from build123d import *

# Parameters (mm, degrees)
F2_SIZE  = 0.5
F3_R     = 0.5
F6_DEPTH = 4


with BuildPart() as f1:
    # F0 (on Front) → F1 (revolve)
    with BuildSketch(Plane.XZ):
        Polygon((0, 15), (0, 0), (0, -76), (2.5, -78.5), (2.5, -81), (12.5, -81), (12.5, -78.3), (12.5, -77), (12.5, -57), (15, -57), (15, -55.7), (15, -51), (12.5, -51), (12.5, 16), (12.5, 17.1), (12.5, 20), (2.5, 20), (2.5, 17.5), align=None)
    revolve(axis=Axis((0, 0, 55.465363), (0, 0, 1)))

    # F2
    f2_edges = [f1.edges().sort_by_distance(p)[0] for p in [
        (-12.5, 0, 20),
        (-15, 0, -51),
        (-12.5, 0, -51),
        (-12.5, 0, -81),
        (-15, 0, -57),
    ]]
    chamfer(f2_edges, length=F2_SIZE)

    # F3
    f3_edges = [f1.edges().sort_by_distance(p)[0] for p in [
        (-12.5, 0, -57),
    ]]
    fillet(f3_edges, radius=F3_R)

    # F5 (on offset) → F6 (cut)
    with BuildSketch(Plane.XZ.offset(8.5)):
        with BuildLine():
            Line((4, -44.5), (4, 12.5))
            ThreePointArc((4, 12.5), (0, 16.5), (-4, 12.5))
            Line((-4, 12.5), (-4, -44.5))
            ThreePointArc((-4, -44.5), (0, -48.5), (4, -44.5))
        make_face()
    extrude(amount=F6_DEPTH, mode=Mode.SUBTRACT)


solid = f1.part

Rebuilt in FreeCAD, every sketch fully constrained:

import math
import FreeCAD as App
import Part
import Sketcher

V = App.Vector
Q = App.Units.Quantity


def edges_at(feature, points):
    """Names of the edges that pass closest to the given points."""
    edges = feature.Shape.Edges
    near = lambda p: min(range(len(edges)), key=lambda i: edges[i].distToShape(Part.Vertex(*p))[0])
    return sorted({f"Edge{near(p) + 1}" for p in points})

doc = App.newDocument("Part")
body = doc.addObject("PartDesign::Body", "Body")

# Sketch on XZ plane
sketch1 = body.newObject("Sketcher::SketchObject", "Sketch")
sketch1.AttachmentSupport = (doc.getObject("XZ_Plane"), [""])
sketch1.MapMode = "FlatFace"
sketch1.addGeometry([
    Part.LineSegment(V(0, 15, 0), V(0, -76, 0)),  # 0
    Part.LineSegment(V(0, -76, 0), V(2.5, -78.5, 0)),  # 1
    Part.LineSegment(V(2.5, -78.5, 0), V(2.5, -81, 0)),  # 2
    Part.LineSegment(V(2.5, -81, 0), V(12.5, -81, 0)),  # 3
    Part.LineSegment(V(12.5, -81, 0), V(12.5, -57, 0)),  # 4
    Part.LineSegment(V(12.5, -57, 0), V(15, -57, 0)),  # 5
    Part.LineSegment(V(15, -57, 0), V(15, -51, 0)),  # 6
    Part.LineSegment(V(15, -51, 0), V(12.5, -51, 0)),  # 7
    Part.LineSegment(V(12.5, -51, 0), V(12.5, 20, 0)),  # 8
    Part.LineSegment(V(12.5, 20, 0), V(2.5, 20, 0)),  # 9
    Part.LineSegment(V(2.5, 20, 0), V(2.5, 17.5, 0)),  # 10
    Part.LineSegment(V(2.5, 17.5, 0), V(0, 15, 0)),  # 11
], False)
sketch1.addConstraint([
    Sketcher.Constraint("Coincident", 0, 2, 1, 1),
    Sketcher.Constraint("Coincident", 1, 2, 2, 1),
    Sketcher.Constraint("Coincident", 2, 2, 3, 1),
    Sketcher.Constraint("Coincident", 3, 2, 4, 1),
    Sketcher.Constraint("Coincident", 4, 2, 5, 1),
    Sketcher.Constraint("Coincident", 5, 2, 6, 1),
    Sketcher.Constraint("Coincident", 6, 2, 7, 1),
    Sketcher.Constraint("Coincident", 7, 2, 8, 1),
    Sketcher.Constraint("Coincident", 8, 2, 9, 1),
    Sketcher.Constraint("Coincident", 9, 2, 10, 1),
    Sketcher.Constraint("Coincident", 10, 2, 11, 1),
    Sketcher.Constraint("Coincident", 11, 2, 0, 1),
    Sketcher.Constraint("Vertical", 0),
    Sketcher.Constraint("Vertical", 2),
    Sketcher.Constraint("Horizontal", 3),
    Sketcher.Constraint("Vertical", 4),
    Sketcher.Constraint("Horizontal", 5),
    Sketcher.Constraint("Vertical", 6),
    Sketcher.Constraint("Horizontal", 7),
    Sketcher.Constraint("Vertical", 8),
    Sketcher.Constraint("Horizontal", 9),
    Sketcher.Constraint("Vertical", 10),
    Sketcher.Constraint("PointOnObject", 0, 2, -2),
    Sketcher.Constraint("Perpendicular", 1, 11),
    Sketcher.Constraint("Vertical", 4, 2, 7, 2),
    Sketcher.Constraint("Vertical", 2, 2, 9, 2),
    Sketcher.Constraint("Equal", 7, 2),
    Sketcher.Constraint("Equal", 2, 10),
    Sketcher.Constraint("Equal", 1, 11),
    Sketcher.Constraint("DistanceX", 3, 1, 3, 2, Q("10 mm")),
    Sketcher.Constraint("DistanceY", 0, 2, 0, 1, Q("91 mm")),
    Sketcher.Constraint("DistanceY", 4, 1, 4, 2, Q("24 mm")),
    Sketcher.Constraint("DistanceY", 6, 1, 6, 2, Q("6 mm")),
    Sketcher.Constraint("DistanceY", 8, 1, 8, 2, Q("71 mm")),
    Sketcher.Constraint("DistanceX", 5, 1, 5, 2, Q("2.5 mm")),
    Sketcher.Constraint("DistanceY", 0, 2, -1, 1, Q("76 mm")),
])
revolution = body.newObject("PartDesign::Revolution", "Revolution")
revolution.Profile = sketch1
revolution.ReferenceAxis = (sketch1, ["V_Axis"])
revolution.Angle = 360
doc.recompute()

chamfer = body.newObject("PartDesign::Chamfer", "Chamfer")
chamfer.Base = (revolution, edges_at(revolution, [
    (-12.5, 0, 20),
    (-15, 0, -51),
    (-12.5, 0, -51),
    (-12.5, 0, -81),
    (-15, 0, -57),
]))
chamfer.Size = 0.5
doc.recompute()

fillet = body.newObject("PartDesign::Fillet", "Fillet")
fillet.Base = (chamfer, edges_at(chamfer, [(-12.5, 0, -57)]))
fillet.Radius = 0.5

# Sketch on XZ plane
sketch2 = body.newObject("Sketcher::SketchObject", "Sketch001")
sketch2.AttachmentSupport = (doc.getObject("XZ_Plane"), [""])
sketch2.MapMode = "FlatFace"
sketch2.AttachmentOffset = App.Placement(V(0, 0, 8.5), App.Rotation())
sketch2.addGeometry([
    Part.LineSegment(V(4, -44.5, 0), V(4, 12.5, 0)),
    Part.ArcOfCircle(Part.Circle(V(0, 12.5, 0), V(0, 0, 1), 4), math.radians(0), math.radians(180)),
    Part.LineSegment(V(-4, 12.5, 0), V(-4, -44.5, 0)),
    Part.ArcOfCircle(Part.Circle(V(0, -44.5, 0), V(0, 0, 1), 4), math.radians(180), math.radians(360)),
], False)
sketch2.addConstraint([
    Sketcher.Constraint("Tangent", 0, 2, 1, 1),
    Sketcher.Constraint("Tangent", 1, 2, 2, 1),
    Sketcher.Constraint("Tangent", 2, 2, 3, 1),
    Sketcher.Constraint("Tangent", 3, 2, 0, 1),
    Sketcher.Constraint("Vertical", 0),
    Sketcher.Constraint("Vertical", 2),
    Sketcher.Constraint("PointOnObject", 1, 3, -2),
    Sketcher.Constraint("Radius", 1, Q("4 mm")),
    Sketcher.Constraint("DistanceY", 0, 1, 0, 2, Q("57 mm")),
    Sketcher.Constraint("DistanceY", -1, 1, 1, 3, Q("12.5 mm")),
])
pocket1 = body.newObject("PartDesign::Pocket", "Pocket")
pocket1.Profile = sketch2
pocket1.Length = 4
pocket1.Reversed = True

doc.recompute()
